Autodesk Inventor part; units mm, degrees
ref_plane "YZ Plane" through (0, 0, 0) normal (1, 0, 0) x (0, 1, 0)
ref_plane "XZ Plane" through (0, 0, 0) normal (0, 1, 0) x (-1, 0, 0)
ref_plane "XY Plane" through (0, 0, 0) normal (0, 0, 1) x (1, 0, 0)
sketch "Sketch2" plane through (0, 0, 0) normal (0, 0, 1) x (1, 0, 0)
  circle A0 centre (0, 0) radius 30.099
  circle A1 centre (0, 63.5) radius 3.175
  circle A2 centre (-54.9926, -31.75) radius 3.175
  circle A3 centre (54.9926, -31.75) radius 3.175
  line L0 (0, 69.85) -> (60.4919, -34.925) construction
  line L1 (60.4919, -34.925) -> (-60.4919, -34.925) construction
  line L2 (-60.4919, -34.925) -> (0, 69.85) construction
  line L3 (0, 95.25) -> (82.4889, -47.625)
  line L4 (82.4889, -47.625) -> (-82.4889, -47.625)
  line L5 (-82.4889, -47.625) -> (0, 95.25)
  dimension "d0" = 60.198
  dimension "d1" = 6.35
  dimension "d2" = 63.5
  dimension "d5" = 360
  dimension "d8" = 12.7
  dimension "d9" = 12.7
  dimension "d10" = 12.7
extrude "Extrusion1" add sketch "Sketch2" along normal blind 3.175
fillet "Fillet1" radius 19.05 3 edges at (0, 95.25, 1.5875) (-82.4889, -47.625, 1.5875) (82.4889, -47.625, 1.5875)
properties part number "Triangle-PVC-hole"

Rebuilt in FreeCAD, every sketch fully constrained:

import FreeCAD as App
import Part
import Sketcher

V = App.Vector
Q = App.Units.Quantity


def edges_at(feature, points):
    """Names of the edges that pass closest to the given points."""
    edges = feature.Shape.Edges
    near = lambda p: min(range(len(edges)), key=lambda i: edges[i].distToShape(Part.Vertex(*p))[0])
    return sorted({f"Edge{near(p) + 1}" for p in points})

doc = App.newDocument("Part")
body = doc.addObject("PartDesign::Body", "Body")

sketch1 = body.newObject("Sketcher::SketchObject", "Sketch")
sketch1.AttachmentSupport = (doc.getObject("XY_Plane"), [""])
sketch1.MapMode = "FlatFace"
sketch1.addGeometry(Part.LineSegment(V(82.5, -47.6, 0), V(0, 95.2, 0)), False)
sketch1.addGeometry(Part.LineSegment(V(0, 95.2, 0), V(-82.5, -47.6, 0)), False)
sketch1.addGeometry(Part.LineSegment(V(-82.5, -47.6, 0), V(82.5, -47.6, 0)), False)
sketch1.addGeometry(Part.Circle(V(-55, -31.8, 0), V(0, 0, 1), 3.2), False)
sketch1.addGeometry(Part.Circle(V(55, -31.8, 0), V(0, 0, 1), 3.2), False)
sketch1.addGeometry(Part.Circle(V(0, 0, 0), V(0, 0, 1), 30.1), False)
sketch1.addGeometry(Part.Circle(V(0, 63.5, 0), V(0, 0, 1), 3.2), False)
sketch1.addConstraint(Sketcher.Constraint("Coincident", 0, 2, 1, 1))
sketch1.addConstraint(Sketcher.Constraint("Coincident", 1, 2, 2, 1))
sketch1.addConstraint(Sketcher.Constraint("Coincident", 2, 2, 0, 1))
sketch1.addConstraint(Sketcher.Constraint("Horizontal", 2))
sketch1.addConstraint(Sketcher.Constraint("Coincident", 5, 3, -1, 1))
sketch1.addConstraint(Sketcher.Constraint("Equal", 3, 4))
sketch1.addConstraint(Sketcher.Constraint("Equal", 4, 6))
sketch1.addConstraint(Sketcher.Constraint("Symmetric", 3, 3, 4, 3, -2))
sketch1.addConstraint(Sketcher.Constraint("PointOnObject", 6, 3, -2))
sketch1.addConstraint(Sketcher.Constraint("PointOnObject", 0, 2, -2))
sketch1.addConstraint(Sketcher.Constraint("Equal", 0, 1))
sketch1.addConstraint(Sketcher.Constraint("Diameter", 3, Q("0.25 in")))
sketch1.addConstraint(Sketcher.Constraint("Diameter", 5, Q("2.37 in")))
sketch1.addConstraint(Sketcher.Constraint("DistanceY", -1, 1, 6, 3, Q("2.5 in")))
sketch1.addConstraint(Sketcher.Constraint("Angle", 0, Q("120 deg")))
sketch1.addConstraint(Sketcher.Constraint("DistanceY", 3, 3, 0, 2, Q("5 in")))
sketch1.addConstraint(Sketcher.Constraint("DistanceY", 3, 3, -1, 1, Q("1.25 in")))
sketch1.addConstraint(Sketcher.Constraint("DistanceX", 2, 1, 2, 2, Q("6.4952 in")))
sketch1.addConstraint(Sketcher.Constraint("DistanceX", 3, 3, -1, 1, 54.9926))
pad1 = body.newObject("PartDesign::Pad", "Pad")
pad1.Profile = sketch1
pad1.Length = Q("0.125 in")
doc.recompute()

fillet = body.newObject("PartDesign::Fillet", "Fillet")
fillet.Base = (pad1, edges_at(pad1, [(0, 95.25, 1.587), (-82.489, -47.625, 1.587), (82.489, -47.625, 1.587)]))
fillet.Radius = Q("0.75 in")

doc.recompute()
